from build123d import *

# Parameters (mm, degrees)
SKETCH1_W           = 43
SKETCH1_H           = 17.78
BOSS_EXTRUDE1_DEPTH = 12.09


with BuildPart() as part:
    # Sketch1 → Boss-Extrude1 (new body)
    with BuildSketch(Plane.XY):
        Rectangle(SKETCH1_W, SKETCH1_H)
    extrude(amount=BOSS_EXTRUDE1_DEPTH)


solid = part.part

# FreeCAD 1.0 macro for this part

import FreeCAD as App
import Part
import Sketcher
from FreeCAD import Vector
Q = App.Units.Quantity

doc = App.newDocument("Part")
params = doc.addObject("Spreadsheet::Sheet", "Params")
for row, (alias, value) in enumerate([
    ("sketch1_width", "43 mm"),
    ("sketch1_height", "17.78 mm"),
    ("pad1_length", "12.09 mm"),
], start=1):
    params.set(f"A{row}", alias)
    params.set(f"B{row}", "=" + value)
    params.setAlias(f"B{row}", alias)

body = doc.addObject("PartDesign::Body", "Body")

# Sketch on XY plane
sketch1 = doc.addObject("Sketcher::SketchObject", "Sketch")
body.addObject(sketch1)
sketch1.AttachmentSupport = (doc.XY_Plane, [""])
sketch1.MapMode = "FlatFace"
sketch1.addGeometry([
    Part.LineSegment(Vector(-22, 9, 0), Vector(-22, -9, 0)),
    Part.LineSegment(Vector(-22, -9, 0), Vector(22, -9, 0)),
    Part.LineSegment(Vector(22, -9, 0), Vector(22, 9, 0)),
    Part.LineSegment(Vector(22, 9, 0), Vector(-22, 9, 0)),
], False)
sketch1.addConstraint([
    Sketcher.Constraint("Coincident", 0, 2, 1, 1),
    Sketcher.Constraint("Coincident", 1, 2, 2, 1),
    Sketcher.Constraint("Coincident", 2, 2, 3, 1),
    Sketcher.Constraint("Coincident", 3, 2, 0, 1),
    Sketcher.Constraint("Vertical", 0),
    Sketcher.Constraint("Horizontal", 1),
    Sketcher.Constraint("Vertical", 2),
    Sketcher.Constraint("Horizontal", 3),
    Sketcher.Constraint("Symmetric", 0, 2, 2, 2, -1, 1),
    Sketcher.Constraint("DistanceX", 1, 1, 1, 2, Q("43 mm")),
    Sketcher.Constraint("DistanceY", 0, 2, 0, 1, Q("17.78 mm")),
])
sketch1.setExpression("Constraints[9]", "Params.sketch1_width")
sketch1.setExpression("Constraints[10]", "Params.sketch1_height")
pad1 = doc.addObject("PartDesign::Pad", "Pad")
body.addObject(pad1)
pad1.Profile = sketch1
pad1.setExpression("Length", "Params.pad1_length")

doc.recompute()
